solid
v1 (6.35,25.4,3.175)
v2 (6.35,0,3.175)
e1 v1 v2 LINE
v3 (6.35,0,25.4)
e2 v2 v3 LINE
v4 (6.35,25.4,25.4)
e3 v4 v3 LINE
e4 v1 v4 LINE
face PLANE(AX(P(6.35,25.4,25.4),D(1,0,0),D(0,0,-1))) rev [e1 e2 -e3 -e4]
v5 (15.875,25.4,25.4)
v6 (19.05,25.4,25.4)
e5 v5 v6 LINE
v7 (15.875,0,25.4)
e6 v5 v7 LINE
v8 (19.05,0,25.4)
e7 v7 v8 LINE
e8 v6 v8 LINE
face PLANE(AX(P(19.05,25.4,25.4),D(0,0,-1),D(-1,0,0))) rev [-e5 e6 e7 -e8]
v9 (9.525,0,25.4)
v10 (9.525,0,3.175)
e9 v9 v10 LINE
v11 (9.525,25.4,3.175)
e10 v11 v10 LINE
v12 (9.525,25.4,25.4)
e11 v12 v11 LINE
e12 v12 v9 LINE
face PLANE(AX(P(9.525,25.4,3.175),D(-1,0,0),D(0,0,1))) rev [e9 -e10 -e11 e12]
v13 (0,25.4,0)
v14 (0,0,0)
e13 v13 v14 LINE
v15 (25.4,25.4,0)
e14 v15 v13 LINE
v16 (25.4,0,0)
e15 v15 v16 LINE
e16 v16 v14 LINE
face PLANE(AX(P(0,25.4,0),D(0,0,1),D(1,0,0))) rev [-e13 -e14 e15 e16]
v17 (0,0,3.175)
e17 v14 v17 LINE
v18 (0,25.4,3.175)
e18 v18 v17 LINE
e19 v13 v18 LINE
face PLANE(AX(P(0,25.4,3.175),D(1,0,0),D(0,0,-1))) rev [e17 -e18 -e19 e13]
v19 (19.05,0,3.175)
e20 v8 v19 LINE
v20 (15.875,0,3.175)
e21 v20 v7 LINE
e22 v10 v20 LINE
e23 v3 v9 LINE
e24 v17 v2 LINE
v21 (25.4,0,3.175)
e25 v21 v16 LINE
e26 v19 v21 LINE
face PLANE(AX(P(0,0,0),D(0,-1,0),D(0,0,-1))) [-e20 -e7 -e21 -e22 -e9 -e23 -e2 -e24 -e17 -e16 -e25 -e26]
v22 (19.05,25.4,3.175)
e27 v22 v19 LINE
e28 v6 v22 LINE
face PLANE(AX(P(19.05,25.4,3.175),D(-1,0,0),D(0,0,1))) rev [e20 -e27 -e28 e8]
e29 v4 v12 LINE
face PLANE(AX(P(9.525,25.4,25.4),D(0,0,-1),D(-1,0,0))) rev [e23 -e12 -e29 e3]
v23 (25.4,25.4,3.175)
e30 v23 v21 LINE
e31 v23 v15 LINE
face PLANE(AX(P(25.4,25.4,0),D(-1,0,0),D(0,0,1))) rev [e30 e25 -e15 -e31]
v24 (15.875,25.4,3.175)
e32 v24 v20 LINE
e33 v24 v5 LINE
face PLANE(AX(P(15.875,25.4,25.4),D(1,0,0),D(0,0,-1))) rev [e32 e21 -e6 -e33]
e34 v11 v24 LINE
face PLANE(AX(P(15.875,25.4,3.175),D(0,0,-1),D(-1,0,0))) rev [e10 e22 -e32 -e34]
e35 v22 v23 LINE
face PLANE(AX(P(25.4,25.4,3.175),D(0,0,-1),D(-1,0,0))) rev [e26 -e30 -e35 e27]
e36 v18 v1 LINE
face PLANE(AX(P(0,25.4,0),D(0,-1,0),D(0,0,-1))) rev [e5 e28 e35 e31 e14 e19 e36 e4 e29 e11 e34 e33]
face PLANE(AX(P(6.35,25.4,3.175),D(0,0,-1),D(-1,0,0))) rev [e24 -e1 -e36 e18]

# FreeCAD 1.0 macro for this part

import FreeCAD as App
import Part
import Sketcher
Q = App.Units.Quantity

doc = App.newDocument("Part")
body = doc.addObject("PartDesign::Body", "Body")

# Sketch on XZ plane
sketch1 = body.newObject("Sketcher::SketchObject", "Sketch")
sketch1.AttachmentSupport = (doc.getObject("XZ_Plane"), [""])
sketch1.MapMode = "FlatFace"
sketch1.addGeometry(Part.LineSegment(App.Vector(25.4, 0, 0), App.Vector(0, 0, 0)), False)
sketch1.addGeometry(Part.LineSegment(App.Vector(0, 0, 0), App.Vector(0, 3.175, 0)), False)
sketch1.addGeometry(Part.LineSegment(App.Vector(0, 3.175, 0), App.Vector(6.35, 3.175, 0)), False)
sketch1.addGeometry(Part.LineSegment(App.Vector(6.35, 3.175, 0), App.Vector(6.35, 25.4, 0)), False)
sketch1.addGeometry(Part.LineSegment(App.Vector(6.35, 25.4, 0), App.Vector(9.525, 25.4, 0)), False)
sketch1.addGeometry(Part.LineSegment(App.Vector(9.525, 25.4, 0), App.Vector(9.525, 3.175, 0)), False)
sketch1.addGeometry(Part.LineSegment(App.Vector(9.525, 3.175, 0), App.Vector(15.875, 3.175, 0)), False)
sketch1.addGeometry(Part.LineSegment(App.Vector(15.875, 3.175, 0), App.Vector(15.875, 25.4, 0)), False)
sketch1.addGeometry(Part.LineSegment(App.Vector(15.875, 25.4, 0), App.Vector(19.05, 25.4, 0)), False)
sketch1.addGeometry(Part.LineSegment(App.Vector(19.05, 25.4, 0), App.Vector(19.05, 3.175, 0)), False)
sketch1.addGeometry(Part.LineSegment(App.Vector(19.05, 3.175, 0), App.Vector(25.4, 3.175, 0)), False)
sketch1.addGeometry(Part.LineSegment(App.Vector(25.4, 3.175, 0), App.Vector(25.4, 0, 0)), False)
sketch1.addConstraint(Sketcher.Constraint("Coincident", 0, 2, 1, 1))
sketch1.addConstraint(Sketcher.Constraint("Coincident", 1, 2, 2, 1))
sketch1.addConstraint(Sketcher.Constraint("Coincident", 2, 2, 3, 1))
sketch1.addConstraint(Sketcher.Constraint("Coincident", 3, 2, 4, 1))
sketch1.addConstraint(Sketcher.Constraint("Coincident", 4, 2, 5, 1))
sketch1.addConstraint(Sketcher.Constraint("Coincident", 5, 2, 6, 1))
sketch1.addConstraint(Sketcher.Constraint("Coincident", 6, 2, 7, 1))
sketch1.addConstraint(Sketcher.Constraint("Coincident", 7, 2, 8, 1))
sketch1.addConstraint(Sketcher.Constraint("Coincident", 8, 2, 9, 1))
sketch1.addConstraint(Sketcher.Constraint("Coincident", 9, 2, 10, 1))
sketch1.addConstraint(Sketcher.Constraint("Coincident", 10, 2, 11, 1))
sketch1.addConstraint(Sketcher.Constraint("Coincident", 11, 2, 0, 1))
sketch1.addConstraint(Sketcher.Constraint("Horizontal", 0))
sketch1.addConstraint(Sketcher.Constraint("Vertical", 1))
sketch1.addConstraint(Sketcher.Constraint("Horizontal", 2))
sketch1.addConstraint(Sketcher.Constraint("Vertical", 3))
sketch1.addConstraint(Sketcher.Constraint("Horizontal", 4))
sketch1.addConstraint(Sketcher.Constraint("Vertical", 5))
sketch1.addConstraint(Sketcher.Constraint("Horizontal", 6))
sketch1.addConstraint(Sketcher.Constraint("Vertical", 7))
sketch1.addConstraint(Sketcher.Constraint("Horizontal", 8))
sketch1.addConstraint(Sketcher.Constraint("Vertical", 9))
sketch1.addConstraint(Sketcher.Constraint("Horizontal", 10))
sketch1.addConstraint(Sketcher.Constraint("Vertical", 11))
sketch1.addConstraint(Sketcher.Constraint("Coincident", 0, 2, -1, 1))
sketch1.addConstraint(Sketcher.Constraint("Horizontal", 2, 2, 5, 2))
sketch1.addConstraint(Sketcher.Constraint("Horizontal", 4, 2, 7, 2))
sketch1.addConstraint(Sketcher.Constraint("Horizontal", 6, 2, 9, 2))
sketch1.addConstraint(Sketcher.Constraint("Equal", 2, 6))
sketch1.addConstraint(Sketcher.Constraint("Equal", 4, 8))
sketch1.addConstraint(Sketcher.Constraint("Equal", 6, 10))
sketch1.addConstraint(Sketcher.Constraint("Equal", 8, 1))
sketch1.addConstraint(Sketcher.Constraint("DistanceX", 0, 2, 0, 1, Q("1 in")))
sketch1.addConstraint(Sketcher.Constraint("DistanceY", -1, 1, 3, 2, Q("1 in")))
sketch1.addConstraint(Sketcher.Constraint("DistanceX", 2, 1, 2, 2, Q("0.25 in")))
pad1 = body.newObject("PartDesign::Pad", "Pad")
pad1.Profile = sketch1
pad1.Length = Q("1 in")
pad1.Reversed = True

doc.recompute()
